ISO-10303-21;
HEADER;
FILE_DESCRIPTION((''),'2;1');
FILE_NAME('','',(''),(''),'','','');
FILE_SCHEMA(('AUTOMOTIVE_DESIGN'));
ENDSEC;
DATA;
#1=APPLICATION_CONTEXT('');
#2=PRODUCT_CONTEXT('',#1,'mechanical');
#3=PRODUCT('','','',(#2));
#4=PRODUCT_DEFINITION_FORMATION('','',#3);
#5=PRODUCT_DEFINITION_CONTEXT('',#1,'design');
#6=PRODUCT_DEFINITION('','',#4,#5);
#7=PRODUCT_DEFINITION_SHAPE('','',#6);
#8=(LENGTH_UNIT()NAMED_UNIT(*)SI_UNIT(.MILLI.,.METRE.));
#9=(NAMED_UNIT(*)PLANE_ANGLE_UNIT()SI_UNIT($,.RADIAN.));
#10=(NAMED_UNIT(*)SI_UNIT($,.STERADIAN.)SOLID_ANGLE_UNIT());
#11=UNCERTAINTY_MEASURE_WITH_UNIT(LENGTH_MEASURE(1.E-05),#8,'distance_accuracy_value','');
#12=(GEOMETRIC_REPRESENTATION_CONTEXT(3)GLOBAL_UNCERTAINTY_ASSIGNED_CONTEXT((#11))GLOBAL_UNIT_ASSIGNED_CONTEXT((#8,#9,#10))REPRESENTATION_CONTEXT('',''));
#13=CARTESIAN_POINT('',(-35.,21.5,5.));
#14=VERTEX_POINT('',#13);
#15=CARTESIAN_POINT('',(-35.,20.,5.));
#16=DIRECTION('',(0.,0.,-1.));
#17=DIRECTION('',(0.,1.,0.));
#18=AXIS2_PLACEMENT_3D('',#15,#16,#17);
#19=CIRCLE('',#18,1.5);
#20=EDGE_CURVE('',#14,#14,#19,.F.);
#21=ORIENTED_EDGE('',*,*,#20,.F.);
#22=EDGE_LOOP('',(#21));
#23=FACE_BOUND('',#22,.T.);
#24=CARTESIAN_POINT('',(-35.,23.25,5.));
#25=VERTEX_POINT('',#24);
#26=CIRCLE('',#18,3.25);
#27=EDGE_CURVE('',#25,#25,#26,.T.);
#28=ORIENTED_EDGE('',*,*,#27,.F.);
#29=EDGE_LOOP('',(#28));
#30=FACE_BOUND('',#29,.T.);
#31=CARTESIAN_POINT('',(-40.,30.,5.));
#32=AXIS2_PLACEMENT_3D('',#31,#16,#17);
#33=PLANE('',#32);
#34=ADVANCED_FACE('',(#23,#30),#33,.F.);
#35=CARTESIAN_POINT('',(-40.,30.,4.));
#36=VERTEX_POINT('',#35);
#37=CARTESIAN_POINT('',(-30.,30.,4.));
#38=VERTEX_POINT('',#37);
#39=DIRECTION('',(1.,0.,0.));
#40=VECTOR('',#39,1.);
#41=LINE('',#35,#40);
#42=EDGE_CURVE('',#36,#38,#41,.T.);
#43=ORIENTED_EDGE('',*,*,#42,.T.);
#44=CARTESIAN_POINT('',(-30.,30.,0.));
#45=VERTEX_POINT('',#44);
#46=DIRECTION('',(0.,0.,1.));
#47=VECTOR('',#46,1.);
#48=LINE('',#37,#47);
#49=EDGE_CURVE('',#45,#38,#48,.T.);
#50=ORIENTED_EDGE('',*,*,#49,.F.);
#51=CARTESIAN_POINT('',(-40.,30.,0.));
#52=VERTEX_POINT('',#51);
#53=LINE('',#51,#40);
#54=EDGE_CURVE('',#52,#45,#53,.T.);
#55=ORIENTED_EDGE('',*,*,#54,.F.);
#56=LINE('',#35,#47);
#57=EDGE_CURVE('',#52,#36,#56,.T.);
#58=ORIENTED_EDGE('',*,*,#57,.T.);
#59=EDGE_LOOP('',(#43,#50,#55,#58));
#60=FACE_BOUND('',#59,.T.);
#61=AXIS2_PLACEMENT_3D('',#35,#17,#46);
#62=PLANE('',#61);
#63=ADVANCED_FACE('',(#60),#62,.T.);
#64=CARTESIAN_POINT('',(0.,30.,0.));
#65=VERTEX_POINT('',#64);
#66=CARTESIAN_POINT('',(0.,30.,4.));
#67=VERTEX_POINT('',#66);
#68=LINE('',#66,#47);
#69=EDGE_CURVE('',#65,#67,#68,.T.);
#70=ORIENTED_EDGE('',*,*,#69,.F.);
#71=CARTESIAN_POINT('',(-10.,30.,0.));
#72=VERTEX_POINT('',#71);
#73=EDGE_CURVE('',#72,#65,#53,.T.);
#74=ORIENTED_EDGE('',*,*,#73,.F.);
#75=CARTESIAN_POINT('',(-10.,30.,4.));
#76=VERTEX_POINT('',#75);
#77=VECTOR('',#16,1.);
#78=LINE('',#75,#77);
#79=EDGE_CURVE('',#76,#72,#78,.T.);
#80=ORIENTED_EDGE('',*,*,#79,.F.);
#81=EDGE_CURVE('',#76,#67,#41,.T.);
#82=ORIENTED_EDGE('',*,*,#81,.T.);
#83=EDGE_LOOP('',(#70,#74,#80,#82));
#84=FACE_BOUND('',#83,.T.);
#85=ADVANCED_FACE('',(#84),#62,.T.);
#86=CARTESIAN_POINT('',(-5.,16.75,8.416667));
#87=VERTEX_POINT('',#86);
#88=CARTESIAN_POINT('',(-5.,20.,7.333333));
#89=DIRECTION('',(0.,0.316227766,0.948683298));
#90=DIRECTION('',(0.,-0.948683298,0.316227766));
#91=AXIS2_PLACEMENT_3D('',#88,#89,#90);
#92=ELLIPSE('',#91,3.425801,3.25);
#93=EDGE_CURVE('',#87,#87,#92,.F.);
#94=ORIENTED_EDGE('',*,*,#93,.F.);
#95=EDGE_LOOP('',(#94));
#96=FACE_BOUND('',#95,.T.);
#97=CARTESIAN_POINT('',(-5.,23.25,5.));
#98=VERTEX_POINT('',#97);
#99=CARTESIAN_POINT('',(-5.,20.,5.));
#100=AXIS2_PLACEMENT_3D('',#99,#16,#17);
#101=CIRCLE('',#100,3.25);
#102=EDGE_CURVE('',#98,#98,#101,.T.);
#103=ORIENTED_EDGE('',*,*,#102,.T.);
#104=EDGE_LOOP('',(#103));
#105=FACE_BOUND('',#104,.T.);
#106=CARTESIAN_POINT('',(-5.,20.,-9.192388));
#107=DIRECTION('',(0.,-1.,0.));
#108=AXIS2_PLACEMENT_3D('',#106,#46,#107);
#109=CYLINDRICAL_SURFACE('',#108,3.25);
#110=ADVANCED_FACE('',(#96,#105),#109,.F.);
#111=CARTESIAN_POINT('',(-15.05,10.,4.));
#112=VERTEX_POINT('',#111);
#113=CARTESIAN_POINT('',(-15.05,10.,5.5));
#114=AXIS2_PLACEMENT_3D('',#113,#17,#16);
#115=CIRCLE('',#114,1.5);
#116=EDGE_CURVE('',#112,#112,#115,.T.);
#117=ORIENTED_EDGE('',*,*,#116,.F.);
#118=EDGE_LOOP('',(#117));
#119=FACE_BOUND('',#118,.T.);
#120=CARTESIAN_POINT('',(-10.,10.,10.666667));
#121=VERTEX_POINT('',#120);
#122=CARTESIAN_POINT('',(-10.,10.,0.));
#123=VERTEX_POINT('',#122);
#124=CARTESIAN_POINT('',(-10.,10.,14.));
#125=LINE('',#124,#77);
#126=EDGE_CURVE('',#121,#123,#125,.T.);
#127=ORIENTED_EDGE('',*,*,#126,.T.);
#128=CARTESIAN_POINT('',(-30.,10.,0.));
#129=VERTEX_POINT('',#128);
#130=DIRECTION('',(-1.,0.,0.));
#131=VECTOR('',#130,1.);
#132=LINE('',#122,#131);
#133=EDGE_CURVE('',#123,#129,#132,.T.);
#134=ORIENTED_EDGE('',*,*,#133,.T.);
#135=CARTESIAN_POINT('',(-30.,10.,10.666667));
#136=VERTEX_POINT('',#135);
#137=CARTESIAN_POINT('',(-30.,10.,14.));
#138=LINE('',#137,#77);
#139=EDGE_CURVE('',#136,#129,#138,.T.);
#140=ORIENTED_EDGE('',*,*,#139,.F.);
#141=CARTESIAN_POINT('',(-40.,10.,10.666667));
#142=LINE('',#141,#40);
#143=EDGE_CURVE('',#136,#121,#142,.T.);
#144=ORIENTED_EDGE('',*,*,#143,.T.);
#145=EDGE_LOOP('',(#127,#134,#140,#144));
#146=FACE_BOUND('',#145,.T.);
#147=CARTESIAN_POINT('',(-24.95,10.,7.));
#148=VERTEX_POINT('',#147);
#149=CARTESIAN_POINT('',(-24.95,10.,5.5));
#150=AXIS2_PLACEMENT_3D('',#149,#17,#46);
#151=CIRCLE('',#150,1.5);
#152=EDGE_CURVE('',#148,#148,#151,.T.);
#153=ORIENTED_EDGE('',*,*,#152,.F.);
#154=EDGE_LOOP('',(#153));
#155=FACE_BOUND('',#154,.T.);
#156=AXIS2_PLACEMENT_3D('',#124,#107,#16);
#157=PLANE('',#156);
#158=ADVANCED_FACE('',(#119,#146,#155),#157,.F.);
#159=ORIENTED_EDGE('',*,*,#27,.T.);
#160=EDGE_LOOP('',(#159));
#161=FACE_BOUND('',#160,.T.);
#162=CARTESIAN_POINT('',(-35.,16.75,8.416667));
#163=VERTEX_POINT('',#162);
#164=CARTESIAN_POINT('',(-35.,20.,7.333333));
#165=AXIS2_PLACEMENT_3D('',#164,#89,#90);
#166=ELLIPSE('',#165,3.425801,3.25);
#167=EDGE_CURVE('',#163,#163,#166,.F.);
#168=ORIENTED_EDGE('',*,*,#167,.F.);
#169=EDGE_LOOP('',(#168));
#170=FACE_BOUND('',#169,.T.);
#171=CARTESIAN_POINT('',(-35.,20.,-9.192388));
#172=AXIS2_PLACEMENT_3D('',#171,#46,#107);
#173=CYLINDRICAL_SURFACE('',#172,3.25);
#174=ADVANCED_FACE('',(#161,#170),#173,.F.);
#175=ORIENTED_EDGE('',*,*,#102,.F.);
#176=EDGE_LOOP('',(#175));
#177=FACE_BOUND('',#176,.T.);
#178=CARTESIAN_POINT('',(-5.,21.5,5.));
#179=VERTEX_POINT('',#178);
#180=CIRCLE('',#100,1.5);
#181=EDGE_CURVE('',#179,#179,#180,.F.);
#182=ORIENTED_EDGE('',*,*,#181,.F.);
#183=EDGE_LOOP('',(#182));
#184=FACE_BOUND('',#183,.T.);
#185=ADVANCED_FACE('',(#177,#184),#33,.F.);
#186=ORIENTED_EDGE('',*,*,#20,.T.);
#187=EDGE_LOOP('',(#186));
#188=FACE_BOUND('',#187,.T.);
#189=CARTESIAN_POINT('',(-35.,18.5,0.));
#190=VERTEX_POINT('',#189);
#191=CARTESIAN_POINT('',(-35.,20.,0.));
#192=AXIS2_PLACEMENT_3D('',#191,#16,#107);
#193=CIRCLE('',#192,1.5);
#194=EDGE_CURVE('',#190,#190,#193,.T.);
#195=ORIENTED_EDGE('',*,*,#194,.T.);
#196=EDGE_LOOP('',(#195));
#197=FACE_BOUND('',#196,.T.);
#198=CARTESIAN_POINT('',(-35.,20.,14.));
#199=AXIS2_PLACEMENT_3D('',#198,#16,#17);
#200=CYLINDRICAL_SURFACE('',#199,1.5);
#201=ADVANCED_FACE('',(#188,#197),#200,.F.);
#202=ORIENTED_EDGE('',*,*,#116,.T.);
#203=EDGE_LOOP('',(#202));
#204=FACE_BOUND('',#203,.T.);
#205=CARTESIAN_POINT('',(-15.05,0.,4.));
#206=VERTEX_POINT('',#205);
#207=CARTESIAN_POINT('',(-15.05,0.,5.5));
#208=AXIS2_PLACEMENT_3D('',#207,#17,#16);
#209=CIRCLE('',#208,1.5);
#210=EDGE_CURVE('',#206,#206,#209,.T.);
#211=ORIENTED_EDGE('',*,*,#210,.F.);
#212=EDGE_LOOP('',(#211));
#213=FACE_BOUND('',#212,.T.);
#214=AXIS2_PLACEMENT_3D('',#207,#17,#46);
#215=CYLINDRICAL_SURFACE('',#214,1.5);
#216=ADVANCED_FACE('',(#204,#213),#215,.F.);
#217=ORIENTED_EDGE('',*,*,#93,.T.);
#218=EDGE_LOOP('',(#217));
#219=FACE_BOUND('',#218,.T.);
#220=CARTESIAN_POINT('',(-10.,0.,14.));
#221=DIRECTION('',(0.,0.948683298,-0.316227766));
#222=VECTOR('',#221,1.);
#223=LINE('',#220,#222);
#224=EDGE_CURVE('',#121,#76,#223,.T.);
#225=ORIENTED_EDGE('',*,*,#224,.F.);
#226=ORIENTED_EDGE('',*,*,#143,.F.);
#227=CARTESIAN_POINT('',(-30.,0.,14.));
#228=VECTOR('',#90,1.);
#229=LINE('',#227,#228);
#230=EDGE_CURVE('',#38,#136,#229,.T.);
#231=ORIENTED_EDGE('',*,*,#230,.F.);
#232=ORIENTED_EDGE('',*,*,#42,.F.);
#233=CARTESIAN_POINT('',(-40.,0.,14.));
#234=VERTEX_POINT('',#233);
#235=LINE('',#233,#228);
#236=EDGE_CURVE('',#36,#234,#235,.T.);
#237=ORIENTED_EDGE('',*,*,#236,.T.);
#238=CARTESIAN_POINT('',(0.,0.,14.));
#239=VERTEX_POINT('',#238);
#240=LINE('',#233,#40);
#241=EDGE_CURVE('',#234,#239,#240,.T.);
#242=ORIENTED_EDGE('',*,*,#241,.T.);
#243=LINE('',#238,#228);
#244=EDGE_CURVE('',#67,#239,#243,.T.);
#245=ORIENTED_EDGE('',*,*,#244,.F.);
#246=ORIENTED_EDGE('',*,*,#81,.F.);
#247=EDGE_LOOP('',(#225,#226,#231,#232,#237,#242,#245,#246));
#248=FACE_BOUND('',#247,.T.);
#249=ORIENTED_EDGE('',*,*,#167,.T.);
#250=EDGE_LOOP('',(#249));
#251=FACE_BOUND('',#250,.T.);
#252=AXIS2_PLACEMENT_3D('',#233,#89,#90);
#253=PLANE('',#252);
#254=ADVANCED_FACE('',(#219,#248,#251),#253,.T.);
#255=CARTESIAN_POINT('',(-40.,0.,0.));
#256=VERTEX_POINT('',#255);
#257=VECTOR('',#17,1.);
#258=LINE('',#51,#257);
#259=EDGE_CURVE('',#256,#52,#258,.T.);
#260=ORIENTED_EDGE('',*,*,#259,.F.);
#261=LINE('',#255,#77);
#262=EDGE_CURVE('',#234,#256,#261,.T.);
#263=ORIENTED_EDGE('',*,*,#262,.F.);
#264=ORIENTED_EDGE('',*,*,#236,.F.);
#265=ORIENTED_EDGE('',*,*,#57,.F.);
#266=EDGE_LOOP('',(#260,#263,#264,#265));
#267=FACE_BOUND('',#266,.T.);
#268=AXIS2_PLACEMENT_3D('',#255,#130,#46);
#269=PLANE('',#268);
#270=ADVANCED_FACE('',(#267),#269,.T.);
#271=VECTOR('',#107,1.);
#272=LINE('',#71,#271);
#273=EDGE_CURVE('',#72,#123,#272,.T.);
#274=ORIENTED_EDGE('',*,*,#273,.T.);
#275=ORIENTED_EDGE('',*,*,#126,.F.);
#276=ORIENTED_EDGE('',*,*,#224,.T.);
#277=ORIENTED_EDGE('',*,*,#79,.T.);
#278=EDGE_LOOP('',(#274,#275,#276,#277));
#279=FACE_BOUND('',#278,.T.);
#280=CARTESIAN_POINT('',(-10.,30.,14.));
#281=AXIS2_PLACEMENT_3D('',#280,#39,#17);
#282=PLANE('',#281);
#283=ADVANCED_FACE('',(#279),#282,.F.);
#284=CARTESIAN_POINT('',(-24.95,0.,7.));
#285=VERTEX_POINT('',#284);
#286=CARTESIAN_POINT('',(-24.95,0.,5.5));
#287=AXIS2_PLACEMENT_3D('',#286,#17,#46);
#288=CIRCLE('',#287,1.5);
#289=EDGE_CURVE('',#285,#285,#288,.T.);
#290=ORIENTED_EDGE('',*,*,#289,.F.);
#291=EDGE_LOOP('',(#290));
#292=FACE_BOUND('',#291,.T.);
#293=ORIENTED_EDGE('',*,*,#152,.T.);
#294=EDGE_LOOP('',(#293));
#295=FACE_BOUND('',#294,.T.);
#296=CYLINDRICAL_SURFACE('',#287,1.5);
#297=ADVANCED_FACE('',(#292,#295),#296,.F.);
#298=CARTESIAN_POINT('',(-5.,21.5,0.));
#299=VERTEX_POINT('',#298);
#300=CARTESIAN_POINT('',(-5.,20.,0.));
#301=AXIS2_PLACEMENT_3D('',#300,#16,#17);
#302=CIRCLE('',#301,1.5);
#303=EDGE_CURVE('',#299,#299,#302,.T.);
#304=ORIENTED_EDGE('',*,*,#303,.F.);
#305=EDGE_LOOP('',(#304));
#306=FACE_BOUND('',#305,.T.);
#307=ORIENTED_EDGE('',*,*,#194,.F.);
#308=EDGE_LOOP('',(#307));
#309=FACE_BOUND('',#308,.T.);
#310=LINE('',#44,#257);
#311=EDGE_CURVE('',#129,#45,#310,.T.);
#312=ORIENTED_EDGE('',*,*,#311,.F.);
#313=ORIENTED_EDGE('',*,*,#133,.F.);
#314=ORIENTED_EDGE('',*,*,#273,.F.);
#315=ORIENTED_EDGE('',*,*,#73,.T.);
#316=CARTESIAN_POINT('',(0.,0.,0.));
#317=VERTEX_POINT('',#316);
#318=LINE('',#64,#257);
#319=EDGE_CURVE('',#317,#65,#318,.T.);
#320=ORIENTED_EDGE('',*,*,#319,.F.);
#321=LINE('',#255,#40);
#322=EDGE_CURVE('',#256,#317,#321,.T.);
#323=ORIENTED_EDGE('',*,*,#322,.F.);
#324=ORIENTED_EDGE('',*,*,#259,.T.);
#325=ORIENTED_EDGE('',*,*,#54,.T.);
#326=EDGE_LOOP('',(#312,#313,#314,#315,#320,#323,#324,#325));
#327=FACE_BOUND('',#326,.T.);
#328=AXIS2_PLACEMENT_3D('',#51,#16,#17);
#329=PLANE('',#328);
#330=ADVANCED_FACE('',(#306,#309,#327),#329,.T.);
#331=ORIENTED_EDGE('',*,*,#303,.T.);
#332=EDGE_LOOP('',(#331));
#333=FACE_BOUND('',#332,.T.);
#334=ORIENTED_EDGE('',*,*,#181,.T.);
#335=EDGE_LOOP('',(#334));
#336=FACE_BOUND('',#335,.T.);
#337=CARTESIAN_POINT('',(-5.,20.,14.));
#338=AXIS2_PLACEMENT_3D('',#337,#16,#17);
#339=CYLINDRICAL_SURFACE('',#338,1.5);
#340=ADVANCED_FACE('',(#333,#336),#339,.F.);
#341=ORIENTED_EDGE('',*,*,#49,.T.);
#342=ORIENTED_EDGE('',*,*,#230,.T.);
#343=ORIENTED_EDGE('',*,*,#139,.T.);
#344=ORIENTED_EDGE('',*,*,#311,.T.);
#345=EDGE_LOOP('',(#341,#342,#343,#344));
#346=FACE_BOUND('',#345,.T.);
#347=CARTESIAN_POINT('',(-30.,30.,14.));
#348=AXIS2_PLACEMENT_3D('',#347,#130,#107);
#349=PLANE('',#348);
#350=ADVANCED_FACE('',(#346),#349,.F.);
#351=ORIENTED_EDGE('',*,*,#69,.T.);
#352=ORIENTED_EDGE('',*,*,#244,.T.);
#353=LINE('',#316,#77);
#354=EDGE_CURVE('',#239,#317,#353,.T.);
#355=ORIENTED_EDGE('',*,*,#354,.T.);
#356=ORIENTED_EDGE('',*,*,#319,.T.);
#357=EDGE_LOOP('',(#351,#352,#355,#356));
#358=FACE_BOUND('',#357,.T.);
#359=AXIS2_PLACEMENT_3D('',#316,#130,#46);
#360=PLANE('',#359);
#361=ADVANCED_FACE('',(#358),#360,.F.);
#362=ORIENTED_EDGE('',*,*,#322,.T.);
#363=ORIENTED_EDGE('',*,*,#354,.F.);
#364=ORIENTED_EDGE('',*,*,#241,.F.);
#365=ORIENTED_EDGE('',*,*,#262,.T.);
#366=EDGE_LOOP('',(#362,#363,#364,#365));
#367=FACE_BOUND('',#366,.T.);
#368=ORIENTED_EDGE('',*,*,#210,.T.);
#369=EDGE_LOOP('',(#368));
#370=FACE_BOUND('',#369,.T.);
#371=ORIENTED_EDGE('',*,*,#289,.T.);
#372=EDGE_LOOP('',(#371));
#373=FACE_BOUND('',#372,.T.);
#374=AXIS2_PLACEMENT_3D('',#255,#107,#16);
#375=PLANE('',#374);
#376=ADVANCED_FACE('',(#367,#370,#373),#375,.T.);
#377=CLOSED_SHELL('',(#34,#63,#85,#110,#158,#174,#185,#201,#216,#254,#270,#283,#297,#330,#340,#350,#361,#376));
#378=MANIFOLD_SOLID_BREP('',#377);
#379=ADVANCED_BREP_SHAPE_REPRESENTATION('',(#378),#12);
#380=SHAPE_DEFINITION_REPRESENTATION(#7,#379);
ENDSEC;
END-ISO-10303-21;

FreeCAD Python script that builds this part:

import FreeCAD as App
import Part
import Sketcher


def add_polygon(sketch, points):
    """Adds a closed chain of lines whose ends are joined by coincident constraints."""
    first, n = sketch.GeometryCount, len(points)
    for a, b in zip(points, points[1:] + points[:1]):
        sketch.addGeometry(Part.LineSegment(App.Vector(*a, 0), App.Vector(*b, 0)), False)
    for i in range(n):
        sketch.addConstraint(Sketcher.Constraint("Coincident", first + i, 2, first + (i + 1) % n, 1))

doc = App.newDocument("Part")
params = doc.addObject("Spreadsheet::Sheet", "Params")
for row, (alias, value) in enumerate([
    ("sketch1_width", "30 mm"),
    ("sketch1_height", "14 mm"),
    ("sketch1_height2", "4 mm"),
    ("pad1_length", "40 mm"),
    ("sketch2_width", "20 mm"),
    ("sketch3_diameter", "3 mm"),
    ("sketch4_diameter", "3 mm"),
    ("sketch5_diameter", "6.5 mm"),
    ("pocket4_length", "9 mm"),
], start=1):
    params.set(f"A{row}", alias)
    params.set(f"B{row}", "=" + value)
    params.setAlias(f"B{row}", alias)

body = doc.addObject("PartDesign::Body", "Body")

# Sketch on YZ plane
sketch1 = body.newObject("Sketcher::SketchObject", "Sketch")
sketch1.AttachmentSupport = (doc.getObject("YZ_Plane"), [""])
sketch1.MapMode = "FlatFace"
add_polygon(sketch1, [(0, 14), (0, 0), (30, 0), (30, 4)])  # lines 0-3
sketch1.addConstraint(Sketcher.Constraint("Vertical", 0))
sketch1.addConstraint(Sketcher.Constraint("Horizontal", 1))
sketch1.addConstraint(Sketcher.Constraint("Vertical", 2))
sketch1.addConstraint(Sketcher.Constraint("Coincident", 0, 2, -1, 1))
sketch1.addConstraint(Sketcher.Constraint("DistanceX", 1, 1, 1, 2, 30.0))
sketch1.addConstraint(Sketcher.Constraint("DistanceY", 0, 2, 0, 1, 14.0))
sketch1.addConstraint(Sketcher.Constraint("DistanceY", 2, 1, 2, 2, 4.0))
sketch1.setExpression("Constraints[8]", "Params.sketch1_width")
sketch1.setExpression("Constraints[9]", "Params.sketch1_height")
sketch1.setExpression("Constraints[10]", "Params.sketch1_height2")
pad1 = body.newObject("PartDesign::Pad", "Pad")
pad1.Profile = sketch1
pad1.setExpression("Length", "Params.pad1_length")
pad1.Reversed = True

# Sketch on XY plane
sketch2 = body.newObject("Sketcher::SketchObject", "Sketch001")
sketch2.AttachmentSupport = (doc.getObject("XY_Plane"), [""])
sketch2.MapMode = "FlatFace"
add_polygon(sketch2, [(-10, 30), (-10, 10), (-30, 10), (-30, 30)])  # lines 0-3
sketch2.addConstraint(Sketcher.Constraint("Vertical", 0))
sketch2.addConstraint(Sketcher.Constraint("Horizontal", 1))
sketch2.addConstraint(Sketcher.Constraint("Vertical", 2))
sketch2.addConstraint(Sketcher.Constraint("Horizontal", 3))
sketch2.addConstraint(Sketcher.Constraint("Equal", 3, 0))
sketch2.addConstraint(Sketcher.Constraint("DistanceX", 1, 2, 1, 1, 20.0))
sketch2.addConstraint(Sketcher.Constraint("DistanceX", 0, 2, -1, 1, 10.0))
sketch2.addConstraint(Sketcher.Constraint("DistanceY", -1, 1, 0, 2, 10.0))
sketch2.setExpression("Constraints[9]", "Params.sketch2_width")
pocket1 = body.newObject("PartDesign::Pocket", "Pocket")
pocket1.Profile = sketch2
pocket1.Type = "ThroughAll"
pocket1.Reversed = True

# Sketch on XY plane
sketch3 = body.newObject("Sketcher::SketchObject", "Sketch002")
sketch3.AttachmentSupport = (doc.getObject("XY_Plane"), [""])
sketch3.MapMode = "FlatFace"
sketch3.addGeometry(Part.Circle(App.Vector(-5, 20, 0), App.Vector(0, 0, 1), 1.5), False)
sketch3.addGeometry(Part.Circle(App.Vector(-35, 20, 0), App.Vector(0, 0, 1), 1.5), False)
sketch3.addConstraint(Sketcher.Constraint("Equal", 0, 1))
sketch3.addConstraint(Sketcher.Constraint("Horizontal", 0, 3, 1, 3))
sketch3.addConstraint(Sketcher.Constraint("Diameter", 0, 3.0))
sketch3.addConstraint(Sketcher.Constraint("DistanceX", 0, 3, -1, 1, 5.0))
sketch3.addConstraint(Sketcher.Constraint("DistanceY", -1, 1, 0, 3, 20.0))
sketch3.addConstraint(Sketcher.Constraint("DistanceX", 1, 3, -1, 1, 35.0))
sketch3.setExpression("Constraints[2]", "Params.sketch3_diameter")
pocket2 = body.newObject("PartDesign::Pocket", "Pocket001")
pocket2.Profile = sketch3
pocket2.Type = "ThroughAll"
pocket2.Reversed = True

# Sketch on XZ plane
sketch4 = body.newObject("Sketcher::SketchObject", "Sketch003")
sketch4.AttachmentSupport = (doc.getObject("XZ_Plane"), [""])
sketch4.MapMode = "FlatFace"
sketch4.AttachmentOffset = App.Placement(App.Vector(0, 0, -10), App.Rotation())
sketch4.addGeometry(Part.Circle(App.Vector(-24.95, 5.5, 0), App.Vector(0, 0, 1), 1.5), False)
sketch4.addGeometry(Part.Circle(App.Vector(-15.05, 5.5, 0), App.Vector(0, 0, 1), 1.5), False)
sketch4.addConstraint(Sketcher.Constraint("Equal", 0, 1))
sketch4.addConstraint(Sketcher.Constraint("Horizontal", 0, 3, 1, 3))
sketch4.addConstraint(Sketcher.Constraint("Diameter", 0, 3.0))
sketch4.addConstraint(Sketcher.Constraint("DistanceY", -1, 1, 0, 3, 5.5))
sketch4.addConstraint(Sketcher.Constraint("DistanceX", 0, 3, 1, 3, 9.9))
sketch4.addConstraint(Sketcher.Constraint("DistanceX", 0, 3, -1, 1, 24.95))
sketch4.setExpression("Constraints[2]", "Params.sketch4_diameter")
pocket3 = body.newObject("PartDesign::Pocket", "Pocket002")
pocket3.Profile = sketch4
pocket3.Type = "ThroughAll"
pocket3.Reversed = True

# Sketch on XY plane
sketch5 = body.newObject("Sketcher::SketchObject", "Sketch004")
sketch5.AttachmentSupport = (doc.getObject("XY_Plane"), [""])
sketch5.MapMode = "FlatFace"
sketch5.AttachmentOffset = App.Placement(App.Vector(0, 0, 14), App.Rotation())
sketch5.addGeometry(Part.Circle(App.Vector(-5, 20, 0), App.Vector(0, 0, 1), 3.25), False)
sketch5.addGeometry(Part.Circle(App.Vector(-35, 20, 0), App.Vector(0, 0, 1), 3.25), False)
sketch5.addConstraint(Sketcher.Constraint("Equal", 0, 1))
sketch5.addConstraint(Sketcher.Constraint("Horizontal", 0, 3, 1, 3))
sketch5.addConstraint(Sketcher.Constraint("Diameter", 0, 6.5))
sketch5.addConstraint(Sketcher.Constraint("DistanceX", 0, 3, -1, 1, 5.0))
sketch5.addConstraint(Sketcher.Constraint("DistanceY", -1, 1, 0, 3, 20.0))
sketch5.addConstraint(Sketcher.Constraint("DistanceX", 1, 3, -1, 1, 35.0))
sketch5.setExpression("Constraints[2]", "Params.sketch5_diameter")
pocket4 = body.newObject("PartDesign::Pocket", "Pocket003")
pocket4.Profile = sketch5
pocket4.setExpression("Length", "Params.pocket4_length")

doc.recompute()
